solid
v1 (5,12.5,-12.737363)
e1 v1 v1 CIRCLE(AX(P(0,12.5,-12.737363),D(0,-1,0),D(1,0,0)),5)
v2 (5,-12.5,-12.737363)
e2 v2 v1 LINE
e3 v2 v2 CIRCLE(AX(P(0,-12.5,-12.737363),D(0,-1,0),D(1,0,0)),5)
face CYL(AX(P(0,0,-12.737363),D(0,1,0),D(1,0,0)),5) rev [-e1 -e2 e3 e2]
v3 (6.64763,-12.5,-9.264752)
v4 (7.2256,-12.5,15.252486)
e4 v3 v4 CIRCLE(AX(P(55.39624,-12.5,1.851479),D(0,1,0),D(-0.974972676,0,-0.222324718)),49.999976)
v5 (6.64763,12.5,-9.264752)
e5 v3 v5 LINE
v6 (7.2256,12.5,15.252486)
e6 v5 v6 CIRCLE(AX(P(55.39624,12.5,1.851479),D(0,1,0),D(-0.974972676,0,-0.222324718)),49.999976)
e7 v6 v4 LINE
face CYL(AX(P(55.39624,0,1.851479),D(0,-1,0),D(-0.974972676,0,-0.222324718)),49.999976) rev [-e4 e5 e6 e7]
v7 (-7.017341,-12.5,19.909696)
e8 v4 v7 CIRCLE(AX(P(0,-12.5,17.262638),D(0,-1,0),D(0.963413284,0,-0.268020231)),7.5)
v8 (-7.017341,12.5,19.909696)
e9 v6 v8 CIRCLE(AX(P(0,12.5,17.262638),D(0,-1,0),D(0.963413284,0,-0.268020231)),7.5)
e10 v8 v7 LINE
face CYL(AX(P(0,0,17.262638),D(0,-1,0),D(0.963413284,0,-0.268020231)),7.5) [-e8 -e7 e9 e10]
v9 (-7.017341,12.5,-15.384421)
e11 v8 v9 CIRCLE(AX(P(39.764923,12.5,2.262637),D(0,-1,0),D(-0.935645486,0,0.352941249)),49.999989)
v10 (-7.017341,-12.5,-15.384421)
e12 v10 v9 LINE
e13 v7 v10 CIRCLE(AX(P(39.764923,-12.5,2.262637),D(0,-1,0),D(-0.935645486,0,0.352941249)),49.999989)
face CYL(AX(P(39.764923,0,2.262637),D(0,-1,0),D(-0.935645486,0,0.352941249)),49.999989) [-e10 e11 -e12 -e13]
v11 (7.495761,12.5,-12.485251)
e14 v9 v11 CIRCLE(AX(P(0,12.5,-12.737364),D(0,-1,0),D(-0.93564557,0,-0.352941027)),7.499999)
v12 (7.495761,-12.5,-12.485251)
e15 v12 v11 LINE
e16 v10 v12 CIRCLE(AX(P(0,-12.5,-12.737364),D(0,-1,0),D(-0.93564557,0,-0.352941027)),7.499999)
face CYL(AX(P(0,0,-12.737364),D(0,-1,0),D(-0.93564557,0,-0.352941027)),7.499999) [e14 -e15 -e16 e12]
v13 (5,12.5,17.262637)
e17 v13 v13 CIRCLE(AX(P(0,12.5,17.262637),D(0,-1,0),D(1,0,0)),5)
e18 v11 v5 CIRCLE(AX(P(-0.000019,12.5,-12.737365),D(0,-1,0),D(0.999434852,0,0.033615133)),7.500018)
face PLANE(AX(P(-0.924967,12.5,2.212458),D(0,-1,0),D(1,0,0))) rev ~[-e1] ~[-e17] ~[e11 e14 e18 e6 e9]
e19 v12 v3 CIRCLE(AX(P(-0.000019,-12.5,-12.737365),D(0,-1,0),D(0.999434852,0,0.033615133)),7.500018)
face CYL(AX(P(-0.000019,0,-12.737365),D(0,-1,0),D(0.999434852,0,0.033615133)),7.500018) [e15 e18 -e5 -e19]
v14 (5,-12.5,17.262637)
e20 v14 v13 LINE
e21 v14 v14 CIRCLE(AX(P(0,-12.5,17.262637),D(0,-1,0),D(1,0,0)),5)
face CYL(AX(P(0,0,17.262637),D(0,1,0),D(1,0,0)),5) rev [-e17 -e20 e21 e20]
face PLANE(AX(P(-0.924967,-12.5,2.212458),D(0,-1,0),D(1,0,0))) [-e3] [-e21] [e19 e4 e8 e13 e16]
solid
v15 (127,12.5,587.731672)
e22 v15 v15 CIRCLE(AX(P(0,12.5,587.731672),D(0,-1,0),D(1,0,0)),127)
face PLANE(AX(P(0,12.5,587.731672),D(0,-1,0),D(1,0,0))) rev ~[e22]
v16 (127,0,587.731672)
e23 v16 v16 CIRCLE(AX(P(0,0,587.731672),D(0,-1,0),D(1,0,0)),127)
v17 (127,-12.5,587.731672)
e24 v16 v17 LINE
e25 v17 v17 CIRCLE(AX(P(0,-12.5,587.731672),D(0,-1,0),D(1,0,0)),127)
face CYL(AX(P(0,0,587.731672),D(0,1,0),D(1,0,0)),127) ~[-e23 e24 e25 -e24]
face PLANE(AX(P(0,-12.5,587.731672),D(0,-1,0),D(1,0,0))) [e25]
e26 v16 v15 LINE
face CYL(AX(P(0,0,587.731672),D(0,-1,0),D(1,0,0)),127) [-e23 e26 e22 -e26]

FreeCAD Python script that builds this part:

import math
import FreeCAD as App
import Part
import Sketcher
from FreeCAD import Vector
Q = App.Units.Quantity

doc = App.newDocument("Part")
body = doc.addObject("PartDesign::Body", "Body")
body.AllowCompound = True

# Sketch on XZ plane
sketch1 = body.newObject("Sketcher::SketchObject", "Sketch")
sketch1.AttachmentSupport = (doc.getObject("XZ_Plane"), [""])
sketch1.MapMode = "FlatFace"
sketch1.addGeometry([
    Part.Circle(Vector(0, 587.731672, 0), Vector(0, 0, 1), 127),  # 0
    Part.ArcOfCircle(Part.Circle(Vector(55.39624, 1.851479, 0), Vector(0, 0, 1), 49.999976), math.radians(164.453504), math.radians(192.845612)),  # 1
    Part.ArcOfCircle(Part.Circle(Vector(0, 17.262638, 0), Vector(0, 0, 1), 7.5), math.radians(-15.546493), math.radians(159.332688)),  # 2
    Part.ArcOfCircle(Part.Circle(Vector(39.764923, 2.262637, 0), Vector(0, 0, 1), 49.999989), math.radians(159.332679), math.radians(200.667321)),  # 3
    Part.ArcOfCircle(Part.Circle(Vector(0, -12.737364, 0), Vector(0, 0, 1), 7.499999), math.radians(-159.332693), math.radians(1.926361)),  # 4
    Part.ArcOfCircle(Part.Circle(Vector(-0.000019, -12.737365, 0), Vector(0, 0, 1), 7.500018), math.radians(1.926368), math.radians(27.581763)),  # 5
    Part.Circle(Vector(0, -12.737363, 0), Vector(0, 0, 1), 5),  # 6
    Part.Circle(Vector(0, 17.262637, 0), Vector(0, 0, 1), 5),  # 7
], False)
sketch1.addConstraint([
    Sketcher.Constraint("Coincident", 1, 1, 2, 1),
    Sketcher.Constraint("Coincident", 2, 2, 3, 1),
    Sketcher.Constraint("Coincident", 3, 2, 4, 1),
    Sketcher.Constraint("Coincident", 4, 2, 5, 1),
    Sketcher.Constraint("Coincident", 5, 2, 1, 2),
    Sketcher.Constraint("Coincident", 6, 3, 4, 3),
    Sketcher.Constraint("Coincident", 7, 3, 2, 3),
    Sketcher.Constraint("PointOnObject", 0, 3, -2),
    Sketcher.Constraint("PointOnObject", 2, 3, -2),
    Sketcher.Constraint("PointOnObject", 4, 3, -2),
    Sketcher.Constraint("Diameter", 0, Q("254 mm")),
    Sketcher.Constraint("Diameter", 6, Q("10 mm")),
    Sketcher.Constraint("Diameter", 7, Q("10 mm")),
    Sketcher.Constraint("Radius", 2, Q("7.5 mm")),
    Sketcher.Constraint("Radius", 4, Q("7.499999 mm")),
    Sketcher.Constraint("DistanceY", 3, 3, 2, 3, Q("15 mm")),
    Sketcher.Constraint("Radius", 3, Q("49.999989 mm")),
    Sketcher.Constraint("Radius", 5, Q("7.500018 mm")),
    Sketcher.Constraint("Radius", 1, Q("49.999976 mm")),
    Sketcher.Constraint("DistanceX", -1, 1, 1, 1, Q("7.2256 mm")),
    Sketcher.Constraint("DistanceX", 3, 2, 4, 2, Q("14.513102 mm")),
    Sketcher.Constraint("DistanceY", 4, 2, 5, 2, Q("3.220499 mm")),
    Sketcher.Constraint("DistanceY", -1, 1, 0, 3, Q("587.731672 mm")),
    Sketcher.Constraint("DistanceX", -1, 1, 1, 3, Q("55.39624 mm")),
    Sketcher.Constraint("DistanceY", -1, 1, 1, 3, Q("1.851479 mm")),
    Sketcher.Constraint("DistanceX", 2, 2, -1, 1, Q("7.017341 mm")),
    Sketcher.Constraint("DistanceX", 3, 2, -1, 1, Q("7.017341 mm")),
])
pad1 = body.newObject("PartDesign::Pad", "Pad")
pad1.Profile = sketch1
pad1.Length = 25
pad1.Midplane = True

doc.recompute()
